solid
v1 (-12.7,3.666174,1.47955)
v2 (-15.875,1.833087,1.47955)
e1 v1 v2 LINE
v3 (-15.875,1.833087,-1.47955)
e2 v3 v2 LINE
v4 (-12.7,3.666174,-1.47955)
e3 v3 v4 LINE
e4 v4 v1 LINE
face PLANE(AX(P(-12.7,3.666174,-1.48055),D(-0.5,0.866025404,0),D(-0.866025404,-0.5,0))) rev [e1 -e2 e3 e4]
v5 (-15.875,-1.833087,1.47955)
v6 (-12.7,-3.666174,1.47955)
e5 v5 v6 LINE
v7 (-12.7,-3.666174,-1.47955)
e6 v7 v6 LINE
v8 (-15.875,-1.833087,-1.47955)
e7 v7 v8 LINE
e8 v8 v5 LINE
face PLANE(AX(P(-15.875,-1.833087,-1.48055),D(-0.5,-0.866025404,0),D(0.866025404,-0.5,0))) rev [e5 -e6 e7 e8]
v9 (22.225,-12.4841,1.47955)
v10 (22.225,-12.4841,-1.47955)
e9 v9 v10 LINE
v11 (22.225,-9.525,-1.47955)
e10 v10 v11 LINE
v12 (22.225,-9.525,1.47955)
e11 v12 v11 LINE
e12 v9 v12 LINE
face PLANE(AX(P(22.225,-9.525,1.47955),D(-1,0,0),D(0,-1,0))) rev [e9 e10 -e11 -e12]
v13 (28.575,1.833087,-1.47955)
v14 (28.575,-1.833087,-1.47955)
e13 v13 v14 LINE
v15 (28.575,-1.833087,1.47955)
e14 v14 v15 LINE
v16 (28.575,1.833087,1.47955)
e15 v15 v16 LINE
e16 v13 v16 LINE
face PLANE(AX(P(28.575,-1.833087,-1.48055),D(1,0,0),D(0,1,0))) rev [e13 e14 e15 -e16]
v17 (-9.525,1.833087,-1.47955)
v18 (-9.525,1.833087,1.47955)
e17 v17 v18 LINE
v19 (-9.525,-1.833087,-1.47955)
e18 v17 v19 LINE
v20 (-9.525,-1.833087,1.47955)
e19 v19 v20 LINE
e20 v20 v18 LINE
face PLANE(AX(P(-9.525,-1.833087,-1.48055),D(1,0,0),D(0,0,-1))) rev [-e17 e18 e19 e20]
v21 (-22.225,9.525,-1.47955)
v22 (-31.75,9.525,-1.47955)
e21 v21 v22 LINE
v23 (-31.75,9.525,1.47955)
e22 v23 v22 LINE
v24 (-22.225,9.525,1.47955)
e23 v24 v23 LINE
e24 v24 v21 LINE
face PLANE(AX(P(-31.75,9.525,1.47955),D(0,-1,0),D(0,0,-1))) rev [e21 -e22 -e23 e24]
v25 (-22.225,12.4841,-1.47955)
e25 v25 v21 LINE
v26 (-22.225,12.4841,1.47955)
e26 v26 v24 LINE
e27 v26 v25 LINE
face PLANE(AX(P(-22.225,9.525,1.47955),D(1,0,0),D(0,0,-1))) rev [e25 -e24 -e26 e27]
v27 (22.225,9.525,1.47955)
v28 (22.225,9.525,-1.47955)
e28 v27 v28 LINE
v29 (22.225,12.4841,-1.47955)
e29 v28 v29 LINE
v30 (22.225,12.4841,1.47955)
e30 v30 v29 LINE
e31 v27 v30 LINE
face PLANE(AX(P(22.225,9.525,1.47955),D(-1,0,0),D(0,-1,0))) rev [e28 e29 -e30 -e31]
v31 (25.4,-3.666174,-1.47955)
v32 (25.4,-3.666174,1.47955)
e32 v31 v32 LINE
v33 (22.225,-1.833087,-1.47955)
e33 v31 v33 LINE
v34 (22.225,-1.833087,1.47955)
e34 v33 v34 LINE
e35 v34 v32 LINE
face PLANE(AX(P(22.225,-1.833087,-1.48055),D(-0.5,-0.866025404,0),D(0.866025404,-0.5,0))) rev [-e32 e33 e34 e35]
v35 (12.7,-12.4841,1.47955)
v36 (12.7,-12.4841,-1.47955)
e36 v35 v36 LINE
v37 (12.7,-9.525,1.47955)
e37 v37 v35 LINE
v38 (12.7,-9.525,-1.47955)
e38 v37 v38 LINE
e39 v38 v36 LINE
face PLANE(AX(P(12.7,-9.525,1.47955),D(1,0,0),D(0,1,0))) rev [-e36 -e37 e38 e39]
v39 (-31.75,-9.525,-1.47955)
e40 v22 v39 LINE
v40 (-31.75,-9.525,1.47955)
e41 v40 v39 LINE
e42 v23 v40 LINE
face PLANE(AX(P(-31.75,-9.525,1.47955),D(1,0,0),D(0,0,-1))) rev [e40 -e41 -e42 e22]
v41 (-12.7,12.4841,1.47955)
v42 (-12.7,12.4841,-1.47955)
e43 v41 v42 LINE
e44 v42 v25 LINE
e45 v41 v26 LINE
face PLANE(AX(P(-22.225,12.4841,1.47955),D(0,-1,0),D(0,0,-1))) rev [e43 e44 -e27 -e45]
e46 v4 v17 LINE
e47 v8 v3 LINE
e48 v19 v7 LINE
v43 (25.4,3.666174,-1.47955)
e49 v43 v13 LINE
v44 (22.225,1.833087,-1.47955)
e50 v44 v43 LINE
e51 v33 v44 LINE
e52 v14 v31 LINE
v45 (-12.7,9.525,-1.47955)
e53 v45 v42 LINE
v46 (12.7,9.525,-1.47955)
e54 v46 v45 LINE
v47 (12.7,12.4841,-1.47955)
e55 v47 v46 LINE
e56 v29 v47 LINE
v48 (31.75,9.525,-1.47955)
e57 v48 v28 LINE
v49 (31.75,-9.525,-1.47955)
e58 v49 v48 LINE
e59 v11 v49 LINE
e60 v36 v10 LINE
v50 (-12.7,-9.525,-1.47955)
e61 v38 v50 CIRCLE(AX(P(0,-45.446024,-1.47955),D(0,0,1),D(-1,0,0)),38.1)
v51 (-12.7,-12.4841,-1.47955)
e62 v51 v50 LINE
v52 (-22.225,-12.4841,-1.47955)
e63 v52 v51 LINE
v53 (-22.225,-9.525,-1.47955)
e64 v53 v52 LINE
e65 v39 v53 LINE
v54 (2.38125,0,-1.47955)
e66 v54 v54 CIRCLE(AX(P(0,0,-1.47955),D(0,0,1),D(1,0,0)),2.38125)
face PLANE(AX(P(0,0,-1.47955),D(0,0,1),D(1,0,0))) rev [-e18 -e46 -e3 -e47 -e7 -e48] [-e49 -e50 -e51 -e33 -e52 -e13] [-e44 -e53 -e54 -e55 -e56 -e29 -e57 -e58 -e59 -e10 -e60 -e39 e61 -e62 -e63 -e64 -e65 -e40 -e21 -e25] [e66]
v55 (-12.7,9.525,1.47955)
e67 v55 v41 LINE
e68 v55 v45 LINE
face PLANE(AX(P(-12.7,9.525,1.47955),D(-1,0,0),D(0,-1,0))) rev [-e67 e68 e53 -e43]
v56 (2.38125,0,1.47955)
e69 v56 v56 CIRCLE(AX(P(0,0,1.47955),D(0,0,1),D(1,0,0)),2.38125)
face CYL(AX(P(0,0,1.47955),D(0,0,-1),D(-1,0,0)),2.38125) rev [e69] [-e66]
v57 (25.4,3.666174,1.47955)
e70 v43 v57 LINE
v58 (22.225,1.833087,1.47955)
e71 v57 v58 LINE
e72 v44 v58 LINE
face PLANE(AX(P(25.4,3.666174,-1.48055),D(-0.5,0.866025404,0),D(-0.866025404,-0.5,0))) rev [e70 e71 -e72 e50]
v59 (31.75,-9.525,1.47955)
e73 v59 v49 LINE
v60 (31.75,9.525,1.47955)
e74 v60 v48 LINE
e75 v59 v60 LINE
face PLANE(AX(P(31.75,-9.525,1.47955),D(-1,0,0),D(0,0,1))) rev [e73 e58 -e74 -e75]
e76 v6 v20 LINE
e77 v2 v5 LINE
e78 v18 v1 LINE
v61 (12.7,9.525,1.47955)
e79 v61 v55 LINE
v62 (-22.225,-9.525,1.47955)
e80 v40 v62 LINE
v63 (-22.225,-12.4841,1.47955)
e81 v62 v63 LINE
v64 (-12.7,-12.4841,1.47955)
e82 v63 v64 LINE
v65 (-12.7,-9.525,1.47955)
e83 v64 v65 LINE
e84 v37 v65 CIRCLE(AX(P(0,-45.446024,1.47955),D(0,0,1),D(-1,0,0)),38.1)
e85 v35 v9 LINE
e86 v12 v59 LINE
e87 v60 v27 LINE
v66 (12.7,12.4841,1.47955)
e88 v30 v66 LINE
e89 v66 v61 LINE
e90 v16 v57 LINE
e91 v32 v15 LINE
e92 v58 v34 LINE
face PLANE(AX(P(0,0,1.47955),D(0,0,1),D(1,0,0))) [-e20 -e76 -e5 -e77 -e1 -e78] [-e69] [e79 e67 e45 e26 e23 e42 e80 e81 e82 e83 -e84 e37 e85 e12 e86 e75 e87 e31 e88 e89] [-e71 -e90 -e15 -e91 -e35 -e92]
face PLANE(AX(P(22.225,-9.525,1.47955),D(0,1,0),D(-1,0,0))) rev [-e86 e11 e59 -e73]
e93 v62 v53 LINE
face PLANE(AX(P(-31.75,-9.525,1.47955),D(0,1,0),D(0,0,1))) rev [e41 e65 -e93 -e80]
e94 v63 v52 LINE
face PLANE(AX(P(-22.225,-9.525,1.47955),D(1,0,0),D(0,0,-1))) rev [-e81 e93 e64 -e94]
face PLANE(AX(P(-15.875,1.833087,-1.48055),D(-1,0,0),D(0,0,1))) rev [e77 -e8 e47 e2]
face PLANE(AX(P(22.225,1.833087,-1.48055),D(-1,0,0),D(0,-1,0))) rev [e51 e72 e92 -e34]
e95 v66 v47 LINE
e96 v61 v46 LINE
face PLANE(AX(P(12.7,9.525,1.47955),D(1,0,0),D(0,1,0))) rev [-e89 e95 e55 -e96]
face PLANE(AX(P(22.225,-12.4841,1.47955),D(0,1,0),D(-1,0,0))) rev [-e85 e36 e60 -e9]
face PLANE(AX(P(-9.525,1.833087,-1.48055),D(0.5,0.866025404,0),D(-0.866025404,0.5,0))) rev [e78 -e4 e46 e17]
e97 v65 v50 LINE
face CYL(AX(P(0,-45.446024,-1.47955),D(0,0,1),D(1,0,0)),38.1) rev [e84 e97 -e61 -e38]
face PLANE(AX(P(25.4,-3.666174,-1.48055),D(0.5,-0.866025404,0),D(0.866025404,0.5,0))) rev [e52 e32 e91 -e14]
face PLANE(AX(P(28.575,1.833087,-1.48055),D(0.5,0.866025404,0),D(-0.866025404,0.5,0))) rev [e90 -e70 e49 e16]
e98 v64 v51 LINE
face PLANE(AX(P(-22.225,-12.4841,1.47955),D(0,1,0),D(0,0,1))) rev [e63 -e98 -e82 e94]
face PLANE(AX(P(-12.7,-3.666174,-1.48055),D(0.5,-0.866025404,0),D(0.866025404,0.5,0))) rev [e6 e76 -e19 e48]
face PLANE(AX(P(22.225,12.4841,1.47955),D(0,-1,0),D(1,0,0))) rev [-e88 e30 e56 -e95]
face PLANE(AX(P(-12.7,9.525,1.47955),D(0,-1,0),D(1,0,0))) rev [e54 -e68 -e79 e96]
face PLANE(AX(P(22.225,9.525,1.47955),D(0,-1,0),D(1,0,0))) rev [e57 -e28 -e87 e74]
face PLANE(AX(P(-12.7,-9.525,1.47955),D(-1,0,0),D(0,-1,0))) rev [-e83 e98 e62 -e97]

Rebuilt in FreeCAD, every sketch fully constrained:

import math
import FreeCAD as App
import Part
import Sketcher

V = App.Vector
Q = App.Units.Quantity

doc = App.newDocument("Part")
body = doc.addObject("PartDesign::Body", "Body")

# Sketch on XY plane
sketch1 = body.newObject("Sketcher::SketchObject", "Sketch")
sketch1.AttachmentSupport = (doc.getObject("XY_Plane"), [""])
sketch1.MapMode = "FlatFace"
sketch1.addGeometry([
    Part.LineSegment(V(12.7, 9.5, 0), V(-12.7, 9.5, 0)),  # 0
    Part.LineSegment(V(-12.7, 9.5, 0), V(-12.7, 12.5, 0)),  # 1
    Part.LineSegment(V(-12.7, 12.5, 0), V(-22.2, 12.5, 0)),  # 2
    Part.LineSegment(V(-22.2, 12.5, 0), V(-22.2, 9.5, 0)),  # 3
    Part.LineSegment(V(-22.2, 9.5, 0), V(-31.8, 9.5, 0)),  # 4
    Part.LineSegment(V(-31.8, 9.5, 0), V(-31.8, -9.5, 0)),  # 5
    Part.LineSegment(V(-31.8, -9.5, 0), V(-22.2, -9.5, 0)),  # 6
    Part.LineSegment(V(-22.2, -9.5, 0), V(-22.2, -12.5, 0)),  # 7
    Part.LineSegment(V(-22.2, -12.5, 0), V(-12.7, -12.5, 0)),  # 8
    Part.LineSegment(V(-12.7, -12.5, 0), V(-12.7, -9.5, 0)),  # 9
    Part.LineSegment(V(-12.7, -9.5, 0), V(12.7, -9.5, 0)),  # 10
    Part.LineSegment(V(12.7, -9.5, 0), V(12.7, -12.5, 0)),  # 11
    Part.LineSegment(V(12.7, -12.5, 0), V(22.2, -12.5, 0)),  # 12
    Part.LineSegment(V(22.2, -12.5, 0), V(22.2, -9.5, 0)),  # 13
    Part.LineSegment(V(22.2, -9.5, 0), V(31.8, -9.5, 0)),  # 14
    Part.LineSegment(V(31.8, -9.5, 0), V(31.8, 9.5, 0)),  # 15
    Part.LineSegment(V(31.8, 9.5, 0), V(22.2, 9.5, 0)),  # 16
    Part.LineSegment(V(22.2, 9.5, 0), V(22.2, 12.5, 0)),  # 17
    Part.LineSegment(V(22.2, 12.5, 0), V(12.7, 12.5, 0)),  # 18
    Part.LineSegment(V(12.7, 12.5, 0), V(12.7, 9.5, 0)),  # 19
    Part.Circle(V(0, 0, 0), V(0, 0, 1), 2.4),  # 20
], False)
sketch1.addConstraint([
    Sketcher.Constraint("Coincident", 0, 2, 1, 1),
    Sketcher.Constraint("Coincident", 1, 2, 2, 1),
    Sketcher.Constraint("Coincident", 2, 2, 3, 1),
    Sketcher.Constraint("Coincident", 3, 2, 4, 1),
    Sketcher.Constraint("Coincident", 4, 2, 5, 1),
    Sketcher.Constraint("Coincident", 5, 2, 6, 1),
    Sketcher.Constraint("Coincident", 6, 2, 7, 1),
    Sketcher.Constraint("Coincident", 7, 2, 8, 1),
    Sketcher.Constraint("Coincident", 8, 2, 9, 1),
    Sketcher.Constraint("Coincident", 9, 2, 10, 1),
    Sketcher.Constraint("Coincident", 10, 2, 11, 1),
    Sketcher.Constraint("Coincident", 11, 2, 12, 1),
    Sketcher.Constraint("Coincident", 12, 2, 13, 1),
    Sketcher.Constraint("Coincident", 13, 2, 14, 1),
    Sketcher.Constraint("Coincident", 14, 2, 15, 1),
    Sketcher.Constraint("Coincident", 15, 2, 16, 1),
    Sketcher.Constraint("Coincident", 16, 2, 17, 1),
    Sketcher.Constraint("Coincident", 17, 2, 18, 1),
    Sketcher.Constraint("Coincident", 18, 2, 19, 1),
    Sketcher.Constraint("Coincident", 19, 2, 0, 1),
    Sketcher.Constraint("Horizontal", 0),
    Sketcher.Constraint("Vertical", 1),
    Sketcher.Constraint("Horizontal", 2),
    Sketcher.Constraint("Vertical", 3),
    Sketcher.Constraint("Horizontal", 4),
    Sketcher.Constraint("Vertical", 5),
    Sketcher.Constraint("Horizontal", 6),
    Sketcher.Constraint("Vertical", 7),
    Sketcher.Constraint("Horizontal", 8),
    Sketcher.Constraint("Vertical", 9),
    Sketcher.Constraint("Horizontal", 10),
    Sketcher.Constraint("Vertical", 11),
    Sketcher.Constraint("Horizontal", 12),
    Sketcher.Constraint("Vertical", 13),
    Sketcher.Constraint("Horizontal", 14),
    Sketcher.Constraint("Vertical", 15),
    Sketcher.Constraint("Horizontal", 16),
    Sketcher.Constraint("Vertical", 17),
    Sketcher.Constraint("Horizontal", 18),
    Sketcher.Constraint("Vertical", 19),
    Sketcher.Constraint("Coincident", 20, 3, -1, 1),
    Sketcher.Constraint("Symmetric", 0, 2, 10, 2, -1, 1),
    Sketcher.Constraint("Symmetric", 2, 2, 12, 2, -1, 1),
    Sketcher.Constraint("Symmetric", 4, 2, 14, 2, -1, 1),
    Sketcher.Constraint("Symmetric", 6, 2, 16, 2, -1, 1),
    Sketcher.Constraint("Symmetric", 8, 2, 18, 2, -1, 1),
    Sketcher.Constraint("Symmetric", 8, 2, 11, 2, -2),
    Sketcher.Constraint("Symmetric", 6, 2, 13, 2, -2),
    Sketcher.Constraint("Horizontal", 0, 2, 3, 2),
    Sketcher.Constraint("Equal", 2, 4),
    Sketcher.Constraint("DistanceX", 0, 2, 0, 1, Q("1 in")),
    Sketcher.Constraint("Diameter", 20, Q("0.1875 in")),
    Sketcher.Constraint("DistanceY", 5, 2, 5, 1, Q("0.75 in")),
    Sketcher.Constraint("DistanceX", 2, 2, 2, 1, Q("0.375 in")),
    Sketcher.Constraint("DistanceY", 1, 1, 1, 2, Q("0.1165 in")),
])
pad1 = body.newObject("PartDesign::Pad", "Pad")
pad1.Profile = sketch1
pad1.Length = Q("0.1165 in")
pad1.Midplane = True

# Sketch on XY plane
sketch2 = body.newObject("Sketcher::SketchObject", "Sketch001")
sketch2.AttachmentSupport = (doc.getObject("XY_Plane"), [""])
sketch2.MapMode = "FlatFace"
sketch2.AttachmentOffset = App.Placement(V(0, 0, 1.47955), App.Rotation())
sketch2.addGeometry([
    Part.LineSegment(V(-12.7, -3.7, 0), V(-9.5, -1.8, 0)),  # 0
    Part.LineSegment(V(-9.5, -1.8, 0), V(-9.5, 1.8, 0)),  # 1
    Part.LineSegment(V(-9.5, 1.8, 0), V(-12.7, 3.7, 0)),  # 2
    Part.LineSegment(V(-12.7, 3.7, 0), V(-15.9, 1.8, 0)),  # 3
    Part.LineSegment(V(-15.9, 1.8, 0), V(-15.9, -1.8, 0)),  # 4
    Part.LineSegment(V(-15.9, -1.8, 0), V(-12.7, -3.7, 0)),  # 5
], False)
sketch2.addConstraint([
    Sketcher.Constraint("Coincident", 0, 2, 1, 1),
    Sketcher.Constraint("Coincident", 1, 2, 2, 1),
    Sketcher.Constraint("Coincident", 2, 2, 3, 1),
    Sketcher.Constraint("Coincident", 3, 2, 4, 1),
    Sketcher.Constraint("Coincident", 4, 2, 5, 1),
    Sketcher.Constraint("Coincident", 5, 2, 0, 1),
    Sketcher.Constraint("Vertical", 1),
    Sketcher.Constraint("Vertical", 4),
    Sketcher.Constraint("Symmetric", 2, 2, 5, 2, -1),
    Sketcher.Constraint("Parallel", 0, 3),
    Sketcher.Constraint("Parallel", 2, 5),
    Sketcher.Constraint("Horizontal", 1, 2, 3, 2),
    Sketcher.Constraint("Horizontal", 0, 2, 4, 2),
    Sketcher.Constraint("Angle", 0, Q("30 deg")),
    Sketcher.Constraint("DistanceX", 2, 2, -1, 1, Q("0.5 in")),
    Sketcher.Constraint("DistanceX", 3, 2, 1, 2, Q("0.25 in")),
    Sketcher.Constraint("DistanceY", 1, 1, 1, 2, Q("3.666174 mm")),
])
pocket1 = body.newObject("PartDesign::Pocket", "Pocket")
pocket1.Profile = sketch2
pocket1.Type = "UpToFirst"

# Sketch on XY plane
sketch3 = body.newObject("Sketcher::SketchObject", "Sketch002")
sketch3.AttachmentSupport = (doc.getObject("XY_Plane"), [""])
sketch3.MapMode = "FlatFace"
sketch3.AttachmentOffset = App.Placement(V(0, 0, 1.47955), App.Rotation())
sketch3.addGeometry([
    Part.LineSegment(V(25.4, -3.7, 0), V(28.6, -1.8, 0)),  # 0
    Part.LineSegment(V(28.6, -1.8, 0), V(28.6, 1.8, 0)),  # 1
    Part.LineSegment(V(28.6, 1.8, 0), V(25.4, 3.7, 0)),  # 2
    Part.LineSegment(V(25.4, 3.7, 0), V(22.2, 1.8, 0)),  # 3
    Part.LineSegment(V(22.2, 1.8, 0), V(22.2, -1.8, 0)),  # 4
    Part.LineSegment(V(22.2, -1.8, 0), V(25.4, -3.7, 0)),  # 5
], False)
sketch3.addConstraint([
    Sketcher.Constraint("Coincident", 0, 2, 1, 1),
    Sketcher.Constraint("Coincident", 1, 2, 2, 1),
    Sketcher.Constraint("Coincident", 2, 2, 3, 1),
    Sketcher.Constraint("Coincident", 3, 2, 4, 1),
    Sketcher.Constraint("Coincident", 4, 2, 5, 1),
    Sketcher.Constraint("Coincident", 5, 2, 0, 1),
    Sketcher.Constraint("Vertical", 1),
    Sketcher.Constraint("Vertical", 4),
    Sketcher.Constraint("Symmetric", 2, 2, 5, 2, -1),
    Sketcher.Constraint("Parallel", 0, 3),
    Sketcher.Constraint("Parallel", 2, 5),
    Sketcher.Constraint("Horizontal", 1, 2, 3, 2),
    Sketcher.Constraint("Horizontal", 0, 2, 4, 2),
    Sketcher.Constraint("DistanceX", -1, 1, 2, 2, Q("1 in")),
    Sketcher.Constraint("Angle", 0, Q("30 deg")),
    Sketcher.Constraint("DistanceX", 3, 2, 1, 2, Q("0.25 in")),
    Sketcher.Constraint("DistanceY", 1, 1, 1, 2, Q("3.666174 mm")),
])
pocket2 = body.newObject("PartDesign::Pocket", "Pocket001")
pocket2.Profile = sketch3
pocket2.Type = "UpToFirst"

# Sketch on XY plane
sketch4 = body.newObject("Sketcher::SketchObject", "Sketch003")
sketch4.AttachmentSupport = (doc.getObject("XY_Plane"), [""])
sketch4.MapMode = "FlatFace"
sketch4.AttachmentOffset = App.Placement(V(0, 0, 1.47955), App.Rotation())
sketch4.addGeometry([
    Part.LineSegment(V(-13, -10, 0), V(13, -10, 0)),
    Part.ArcOfCircle(Part.Circle(V(0, -45, 0), V(0, 0, 1), 38), math.radians(71), math.radians(109)),
], False)
sketch4.addConstraint([
    Sketcher.Constraint("Coincident", 0, 1, 1, 2),
    Sketcher.Constraint("Coincident", 1, 1, 0, 2),
    Sketcher.Constraint("Horizontal", 0),
    Sketcher.Constraint("PointOnObject", 1, 3, -2),
    Sketcher.Constraint("Radius", 1, Q("1.5 in")),
    Sketcher.Constraint("DistanceX", 0, 1, 0, 2, Q("1 in")),
    Sketcher.Constraint("DistanceY", 0, 1, -1, 1, Q("0.375 in")),
])
pocket3 = body.newObject("PartDesign::Pocket", "Pocket002")
pocket3.Profile = sketch4
pocket3.Type = "ThroughAll"

doc.recompute()
